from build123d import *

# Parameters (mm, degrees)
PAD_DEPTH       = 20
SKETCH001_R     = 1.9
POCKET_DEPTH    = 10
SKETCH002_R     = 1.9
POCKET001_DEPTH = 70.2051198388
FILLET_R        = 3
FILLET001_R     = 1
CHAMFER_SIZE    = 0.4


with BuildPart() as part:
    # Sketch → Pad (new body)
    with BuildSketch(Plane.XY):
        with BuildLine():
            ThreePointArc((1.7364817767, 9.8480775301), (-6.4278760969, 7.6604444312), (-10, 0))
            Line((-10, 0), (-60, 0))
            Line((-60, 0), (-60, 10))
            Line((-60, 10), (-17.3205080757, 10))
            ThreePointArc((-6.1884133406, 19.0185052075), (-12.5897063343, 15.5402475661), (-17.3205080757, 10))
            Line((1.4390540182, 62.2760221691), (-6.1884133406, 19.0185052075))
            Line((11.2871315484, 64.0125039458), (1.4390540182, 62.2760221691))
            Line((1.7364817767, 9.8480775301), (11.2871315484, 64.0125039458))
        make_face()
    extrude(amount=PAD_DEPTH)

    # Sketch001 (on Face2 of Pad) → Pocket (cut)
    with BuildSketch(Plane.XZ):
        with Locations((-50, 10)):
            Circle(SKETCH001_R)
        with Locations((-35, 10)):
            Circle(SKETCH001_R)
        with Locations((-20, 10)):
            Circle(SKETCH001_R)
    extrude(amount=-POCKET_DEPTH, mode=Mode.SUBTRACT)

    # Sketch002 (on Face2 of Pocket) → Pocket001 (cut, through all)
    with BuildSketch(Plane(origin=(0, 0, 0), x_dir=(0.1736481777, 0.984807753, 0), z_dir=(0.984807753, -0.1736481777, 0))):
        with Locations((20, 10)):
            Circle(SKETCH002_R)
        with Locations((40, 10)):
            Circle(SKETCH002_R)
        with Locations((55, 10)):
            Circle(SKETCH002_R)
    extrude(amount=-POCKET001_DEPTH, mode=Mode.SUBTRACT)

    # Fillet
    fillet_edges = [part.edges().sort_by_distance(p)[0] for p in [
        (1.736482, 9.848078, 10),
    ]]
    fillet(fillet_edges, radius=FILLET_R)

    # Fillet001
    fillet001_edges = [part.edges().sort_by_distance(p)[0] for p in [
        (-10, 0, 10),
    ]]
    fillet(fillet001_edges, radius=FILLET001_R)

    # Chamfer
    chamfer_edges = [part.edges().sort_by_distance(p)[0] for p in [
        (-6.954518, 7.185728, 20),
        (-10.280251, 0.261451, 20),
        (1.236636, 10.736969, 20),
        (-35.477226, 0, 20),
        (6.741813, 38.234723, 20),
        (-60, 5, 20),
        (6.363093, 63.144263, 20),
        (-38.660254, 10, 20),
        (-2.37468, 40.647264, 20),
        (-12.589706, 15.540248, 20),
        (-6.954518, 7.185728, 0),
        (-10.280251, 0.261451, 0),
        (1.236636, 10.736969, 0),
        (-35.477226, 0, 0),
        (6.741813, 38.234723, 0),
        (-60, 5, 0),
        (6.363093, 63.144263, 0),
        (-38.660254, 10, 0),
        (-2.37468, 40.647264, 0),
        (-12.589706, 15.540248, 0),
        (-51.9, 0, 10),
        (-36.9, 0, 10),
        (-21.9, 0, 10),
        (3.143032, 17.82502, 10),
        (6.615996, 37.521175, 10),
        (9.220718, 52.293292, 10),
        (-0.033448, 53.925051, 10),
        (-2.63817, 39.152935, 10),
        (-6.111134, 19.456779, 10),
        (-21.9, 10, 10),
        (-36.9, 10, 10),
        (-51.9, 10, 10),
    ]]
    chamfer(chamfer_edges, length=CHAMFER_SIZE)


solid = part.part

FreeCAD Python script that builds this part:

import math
import FreeCAD as App
import Part
import Sketcher
from FreeCAD import Vector
Q = App.Units.Quantity


def edges_at(feature, points):
    """Names of the edges that pass closest to the given points."""
    edges = feature.Shape.Edges
    near = lambda p: min(range(len(edges)), key=lambda i: edges[i].distToShape(Part.Vertex(*p))[0])
    return sorted({f"Edge{near(p) + 1}" for p in points})

doc = App.newDocument("Part")
body = doc.addObject("PartDesign::Body", "Body")

# Sketch on XY plane
sketch1 = doc.addObject("Sketcher::SketchObject", "Sketch")
body.addObject(sketch1)
sketch1.AttachmentSupport = (doc.XY_Plane, [""])
sketch1.MapMode = "FlatFace"
sketch1.addGeometry([
    Part.ArcOfCircle(Part.Circle(Vector(0, 0, 0), Vector(0, 0, 1), 10), math.radians(80), math.radians(180)),  # 0
    Part.LineSegment(Vector(2, 10, 0), Vector(11, 64, 0)),  # 1
    Part.LineSegment(Vector(11, 64, 0), Vector(1, 62, 0)),  # 2
    Part.LineSegment(Vector(1, 62, 0), Vector(-6, 19, 0)),  # 3
    Part.ArcOfCircle(Part.Circle(Vector(0, 0, 0), Vector(0, 0, 1), 20), math.radians(108), math.radians(150)),  # 4
    Part.LineSegment(Vector(-17, 10, 0), Vector(-60, 10, 0)),  # 5
    Part.LineSegment(Vector(-60, 10, 0), Vector(-60, 0, 0)),  # 6
    Part.LineSegment(Vector(-60, 0, 0), Vector(-10, 0, 0)),  # 7
], False)
sketch1.addConstraint([
    Sketcher.Constraint("Coincident", 0, 1, 1, 1),
    Sketcher.Constraint("Coincident", 1, 2, 2, 1),
    Sketcher.Constraint("Coincident", 2, 2, 3, 1),
    Sketcher.Constraint("Coincident", 3, 2, 4, 1),
    Sketcher.Constraint("Coincident", 4, 2, 5, 1),
    Sketcher.Constraint("Coincident", 5, 2, 6, 1),
    Sketcher.Constraint("Coincident", 6, 2, 7, 1),
    Sketcher.Constraint("Coincident", 7, 2, 0, 2),
    Sketcher.Constraint("Horizontal", 5),
    Sketcher.Constraint("Vertical", 6),
    Sketcher.Constraint("Horizontal", 7),
    Sketcher.Constraint("Coincident", 0, 3, -1, 1),
    Sketcher.Constraint("Coincident", 4, 3, -1, 1),
    Sketcher.Constraint("PointOnObject", 6, 2, -1),
    Sketcher.Constraint("Parallel", 1, 3),
    Sketcher.Constraint("Radius", 0, Q("10 mm")),
    Sketcher.Constraint("Radius", 4, Q("20 mm")),
    Sketcher.Constraint("DistanceX", 7, 1, 7, 2, Q("50 mm")),
    Sketcher.Constraint("DistanceY", 6, 2, 6, 1, Q("10 mm")),
    Sketcher.Constraint("Angle", 1, Q("80 deg")),
    Sketcher.Constraint("Angle", 2, Q("-170 deg")),
    Sketcher.Constraint("Distance", 1, Q("55 mm")),
    Sketcher.Constraint("Distance", 2, Q("10 mm")),
    Sketcher.Constraint("DistanceY", 3, 2, 1, 2, Q("44.993999 mm")),
])
pad1 = doc.addObject("PartDesign::Pad", "Pad")
body.addObject(pad1)
pad1.Profile = sketch1
pad1.Length = 20

# Sketch on XZ plane
sketch2 = doc.addObject("Sketcher::SketchObject", "Sketch001")
body.addObject(sketch2)
sketch2.AttachmentSupport = (doc.XZ_Plane, [""])
sketch2.MapMode = "FlatFace"
sketch2.addGeometry([
    Part.Circle(Vector(-50, 10, 0), Vector(0, 0, 1), 1.9),
    Part.Circle(Vector(-35, 10, 0), Vector(0, 0, 1), 1.9),
    Part.Circle(Vector(-20, 10, 0), Vector(0, 0, 1), 1.9),
], False)
sketch2.addConstraint([
    Sketcher.Constraint("Equal", 0, 1),
    Sketcher.Constraint("Equal", 1, 2),
    Sketcher.Constraint("Horizontal", 0, 3, 1, 3),
    Sketcher.Constraint("Horizontal", 1, 3, 2, 3),
    Sketcher.Constraint("Diameter", 0, Q("3.8 mm")),
    Sketcher.Constraint("DistanceX", 0, 3, -1, 1, Q("50 mm")),
    Sketcher.Constraint("DistanceY", -1, 1, 0, 3, Q("10 mm")),
    Sketcher.Constraint("DistanceX", 1, 3, -1, 1, Q("35 mm")),
    Sketcher.Constraint("DistanceX", 2, 3, -1, 1, Q("20 mm")),
])
pocket1 = doc.addObject("PartDesign::Pocket", "Pocket")
body.addObject(pocket1)
pocket1.Profile = sketch2
pocket1.Length = 10

# Sketch on an angled plane
sketch3 = doc.addObject("Sketcher::SketchObject", "Sketch002")
body.addObject(sketch3)
sketch3.Placement = App.Placement(Vector(0, 0, 0), App.Rotation(Vector(0.173648178, 0.984807753, 0), Vector(0, 0, 1), Vector(0.984807753, -0.173648178, 0), "ZXY"))
sketch3.addGeometry([
    Part.Circle(Vector(20, 10, 0), Vector(0, 0, 1), 1.9),
    Part.Circle(Vector(40, 10, 0), Vector(0, 0, 1), 1.9),
    Part.Circle(Vector(55, 10, 0), Vector(0, 0, 1), 1.9),
], False)
sketch3.addConstraint([
    Sketcher.Constraint("Equal", 0, 1),
    Sketcher.Constraint("Equal", 1, 2),
    Sketcher.Constraint("Horizontal", 0, 3, 1, 3),
    Sketcher.Constraint("Horizontal", 1, 3, 2, 3),
    Sketcher.Constraint("Diameter", 0, Q("3.8 mm")),
    Sketcher.Constraint("DistanceX", -1, 1, 0, 3, Q("20 mm")),
    Sketcher.Constraint("DistanceY", -1, 1, 0, 3, Q("10 mm")),
    Sketcher.Constraint("DistanceX", -1, 1, 1, 3, Q("40 mm")),
    Sketcher.Constraint("DistanceX", -1, 1, 2, 3, Q("55 mm")),
])
pocket2 = doc.addObject("PartDesign::Pocket", "Pocket001")
body.addObject(pocket2)
pocket2.Profile = sketch3
pocket2.Type = "ThroughAll"
doc.recompute()

fillet = doc.addObject("PartDesign::Fillet", "Fillet")
body.addObject(fillet)
fillet.Base = (pocket2, edges_at(pocket2, [(1.736, 9.848, 10)]))
fillet.Radius = 3
doc.recompute()

fillet2 = doc.addObject("PartDesign::Fillet", "Fillet001")
body.addObject(fillet2)
fillet2.Base = (fillet, edges_at(fillet, [(-10, 0, 10)]))
fillet2.Radius = 1
doc.recompute()

chamfer = doc.addObject("PartDesign::Chamfer", "Chamfer")
body.addObject(chamfer)
chamfer.Base = (fillet2, edges_at(fillet2, [
    (-6.955, 7.186, 20),
    (-10.28, 0.261, 20),
    (1.237, 10.737, 20),
    (-35.477, 0, 20),
    (6.742, 38.235, 20),
    (-60, 5, 20),
    (6.363, 63.144, 20),
    (-38.66, 10, 20),
    (-2.375, 40.647, 20),
    (-12.59, 15.54, 20),
    (-6.955, 7.186, 0),
    (-10.28, 0.261, 0),
    (1.237, 10.737, 0),
    (-35.477, 0, 0),
    (6.742, 38.235, 0),
    (-60, 5, 0),
    (6.363, 63.144, 0),
    (-38.66, 10, 0),
    (-2.375, 40.647, 0),
    (-12.59, 15.54, 0),
    (-51.9, 0, 10),
    (-36.9, 0, 10),
    (-21.9, 0, 10),
    (3.143, 17.825, 10),
    (6.616, 37.521, 10),
    (9.221, 52.293, 10),
    (-0.033, 53.925, 10),
    (-2.638, 39.153, 10),
    (-6.111, 19.457, 10),
    (-21.9, 10, 10),
    (-36.9, 10, 10),
    (-51.9, 10, 10),
]))
chamfer.Size = 0.4

doc.recompute()
